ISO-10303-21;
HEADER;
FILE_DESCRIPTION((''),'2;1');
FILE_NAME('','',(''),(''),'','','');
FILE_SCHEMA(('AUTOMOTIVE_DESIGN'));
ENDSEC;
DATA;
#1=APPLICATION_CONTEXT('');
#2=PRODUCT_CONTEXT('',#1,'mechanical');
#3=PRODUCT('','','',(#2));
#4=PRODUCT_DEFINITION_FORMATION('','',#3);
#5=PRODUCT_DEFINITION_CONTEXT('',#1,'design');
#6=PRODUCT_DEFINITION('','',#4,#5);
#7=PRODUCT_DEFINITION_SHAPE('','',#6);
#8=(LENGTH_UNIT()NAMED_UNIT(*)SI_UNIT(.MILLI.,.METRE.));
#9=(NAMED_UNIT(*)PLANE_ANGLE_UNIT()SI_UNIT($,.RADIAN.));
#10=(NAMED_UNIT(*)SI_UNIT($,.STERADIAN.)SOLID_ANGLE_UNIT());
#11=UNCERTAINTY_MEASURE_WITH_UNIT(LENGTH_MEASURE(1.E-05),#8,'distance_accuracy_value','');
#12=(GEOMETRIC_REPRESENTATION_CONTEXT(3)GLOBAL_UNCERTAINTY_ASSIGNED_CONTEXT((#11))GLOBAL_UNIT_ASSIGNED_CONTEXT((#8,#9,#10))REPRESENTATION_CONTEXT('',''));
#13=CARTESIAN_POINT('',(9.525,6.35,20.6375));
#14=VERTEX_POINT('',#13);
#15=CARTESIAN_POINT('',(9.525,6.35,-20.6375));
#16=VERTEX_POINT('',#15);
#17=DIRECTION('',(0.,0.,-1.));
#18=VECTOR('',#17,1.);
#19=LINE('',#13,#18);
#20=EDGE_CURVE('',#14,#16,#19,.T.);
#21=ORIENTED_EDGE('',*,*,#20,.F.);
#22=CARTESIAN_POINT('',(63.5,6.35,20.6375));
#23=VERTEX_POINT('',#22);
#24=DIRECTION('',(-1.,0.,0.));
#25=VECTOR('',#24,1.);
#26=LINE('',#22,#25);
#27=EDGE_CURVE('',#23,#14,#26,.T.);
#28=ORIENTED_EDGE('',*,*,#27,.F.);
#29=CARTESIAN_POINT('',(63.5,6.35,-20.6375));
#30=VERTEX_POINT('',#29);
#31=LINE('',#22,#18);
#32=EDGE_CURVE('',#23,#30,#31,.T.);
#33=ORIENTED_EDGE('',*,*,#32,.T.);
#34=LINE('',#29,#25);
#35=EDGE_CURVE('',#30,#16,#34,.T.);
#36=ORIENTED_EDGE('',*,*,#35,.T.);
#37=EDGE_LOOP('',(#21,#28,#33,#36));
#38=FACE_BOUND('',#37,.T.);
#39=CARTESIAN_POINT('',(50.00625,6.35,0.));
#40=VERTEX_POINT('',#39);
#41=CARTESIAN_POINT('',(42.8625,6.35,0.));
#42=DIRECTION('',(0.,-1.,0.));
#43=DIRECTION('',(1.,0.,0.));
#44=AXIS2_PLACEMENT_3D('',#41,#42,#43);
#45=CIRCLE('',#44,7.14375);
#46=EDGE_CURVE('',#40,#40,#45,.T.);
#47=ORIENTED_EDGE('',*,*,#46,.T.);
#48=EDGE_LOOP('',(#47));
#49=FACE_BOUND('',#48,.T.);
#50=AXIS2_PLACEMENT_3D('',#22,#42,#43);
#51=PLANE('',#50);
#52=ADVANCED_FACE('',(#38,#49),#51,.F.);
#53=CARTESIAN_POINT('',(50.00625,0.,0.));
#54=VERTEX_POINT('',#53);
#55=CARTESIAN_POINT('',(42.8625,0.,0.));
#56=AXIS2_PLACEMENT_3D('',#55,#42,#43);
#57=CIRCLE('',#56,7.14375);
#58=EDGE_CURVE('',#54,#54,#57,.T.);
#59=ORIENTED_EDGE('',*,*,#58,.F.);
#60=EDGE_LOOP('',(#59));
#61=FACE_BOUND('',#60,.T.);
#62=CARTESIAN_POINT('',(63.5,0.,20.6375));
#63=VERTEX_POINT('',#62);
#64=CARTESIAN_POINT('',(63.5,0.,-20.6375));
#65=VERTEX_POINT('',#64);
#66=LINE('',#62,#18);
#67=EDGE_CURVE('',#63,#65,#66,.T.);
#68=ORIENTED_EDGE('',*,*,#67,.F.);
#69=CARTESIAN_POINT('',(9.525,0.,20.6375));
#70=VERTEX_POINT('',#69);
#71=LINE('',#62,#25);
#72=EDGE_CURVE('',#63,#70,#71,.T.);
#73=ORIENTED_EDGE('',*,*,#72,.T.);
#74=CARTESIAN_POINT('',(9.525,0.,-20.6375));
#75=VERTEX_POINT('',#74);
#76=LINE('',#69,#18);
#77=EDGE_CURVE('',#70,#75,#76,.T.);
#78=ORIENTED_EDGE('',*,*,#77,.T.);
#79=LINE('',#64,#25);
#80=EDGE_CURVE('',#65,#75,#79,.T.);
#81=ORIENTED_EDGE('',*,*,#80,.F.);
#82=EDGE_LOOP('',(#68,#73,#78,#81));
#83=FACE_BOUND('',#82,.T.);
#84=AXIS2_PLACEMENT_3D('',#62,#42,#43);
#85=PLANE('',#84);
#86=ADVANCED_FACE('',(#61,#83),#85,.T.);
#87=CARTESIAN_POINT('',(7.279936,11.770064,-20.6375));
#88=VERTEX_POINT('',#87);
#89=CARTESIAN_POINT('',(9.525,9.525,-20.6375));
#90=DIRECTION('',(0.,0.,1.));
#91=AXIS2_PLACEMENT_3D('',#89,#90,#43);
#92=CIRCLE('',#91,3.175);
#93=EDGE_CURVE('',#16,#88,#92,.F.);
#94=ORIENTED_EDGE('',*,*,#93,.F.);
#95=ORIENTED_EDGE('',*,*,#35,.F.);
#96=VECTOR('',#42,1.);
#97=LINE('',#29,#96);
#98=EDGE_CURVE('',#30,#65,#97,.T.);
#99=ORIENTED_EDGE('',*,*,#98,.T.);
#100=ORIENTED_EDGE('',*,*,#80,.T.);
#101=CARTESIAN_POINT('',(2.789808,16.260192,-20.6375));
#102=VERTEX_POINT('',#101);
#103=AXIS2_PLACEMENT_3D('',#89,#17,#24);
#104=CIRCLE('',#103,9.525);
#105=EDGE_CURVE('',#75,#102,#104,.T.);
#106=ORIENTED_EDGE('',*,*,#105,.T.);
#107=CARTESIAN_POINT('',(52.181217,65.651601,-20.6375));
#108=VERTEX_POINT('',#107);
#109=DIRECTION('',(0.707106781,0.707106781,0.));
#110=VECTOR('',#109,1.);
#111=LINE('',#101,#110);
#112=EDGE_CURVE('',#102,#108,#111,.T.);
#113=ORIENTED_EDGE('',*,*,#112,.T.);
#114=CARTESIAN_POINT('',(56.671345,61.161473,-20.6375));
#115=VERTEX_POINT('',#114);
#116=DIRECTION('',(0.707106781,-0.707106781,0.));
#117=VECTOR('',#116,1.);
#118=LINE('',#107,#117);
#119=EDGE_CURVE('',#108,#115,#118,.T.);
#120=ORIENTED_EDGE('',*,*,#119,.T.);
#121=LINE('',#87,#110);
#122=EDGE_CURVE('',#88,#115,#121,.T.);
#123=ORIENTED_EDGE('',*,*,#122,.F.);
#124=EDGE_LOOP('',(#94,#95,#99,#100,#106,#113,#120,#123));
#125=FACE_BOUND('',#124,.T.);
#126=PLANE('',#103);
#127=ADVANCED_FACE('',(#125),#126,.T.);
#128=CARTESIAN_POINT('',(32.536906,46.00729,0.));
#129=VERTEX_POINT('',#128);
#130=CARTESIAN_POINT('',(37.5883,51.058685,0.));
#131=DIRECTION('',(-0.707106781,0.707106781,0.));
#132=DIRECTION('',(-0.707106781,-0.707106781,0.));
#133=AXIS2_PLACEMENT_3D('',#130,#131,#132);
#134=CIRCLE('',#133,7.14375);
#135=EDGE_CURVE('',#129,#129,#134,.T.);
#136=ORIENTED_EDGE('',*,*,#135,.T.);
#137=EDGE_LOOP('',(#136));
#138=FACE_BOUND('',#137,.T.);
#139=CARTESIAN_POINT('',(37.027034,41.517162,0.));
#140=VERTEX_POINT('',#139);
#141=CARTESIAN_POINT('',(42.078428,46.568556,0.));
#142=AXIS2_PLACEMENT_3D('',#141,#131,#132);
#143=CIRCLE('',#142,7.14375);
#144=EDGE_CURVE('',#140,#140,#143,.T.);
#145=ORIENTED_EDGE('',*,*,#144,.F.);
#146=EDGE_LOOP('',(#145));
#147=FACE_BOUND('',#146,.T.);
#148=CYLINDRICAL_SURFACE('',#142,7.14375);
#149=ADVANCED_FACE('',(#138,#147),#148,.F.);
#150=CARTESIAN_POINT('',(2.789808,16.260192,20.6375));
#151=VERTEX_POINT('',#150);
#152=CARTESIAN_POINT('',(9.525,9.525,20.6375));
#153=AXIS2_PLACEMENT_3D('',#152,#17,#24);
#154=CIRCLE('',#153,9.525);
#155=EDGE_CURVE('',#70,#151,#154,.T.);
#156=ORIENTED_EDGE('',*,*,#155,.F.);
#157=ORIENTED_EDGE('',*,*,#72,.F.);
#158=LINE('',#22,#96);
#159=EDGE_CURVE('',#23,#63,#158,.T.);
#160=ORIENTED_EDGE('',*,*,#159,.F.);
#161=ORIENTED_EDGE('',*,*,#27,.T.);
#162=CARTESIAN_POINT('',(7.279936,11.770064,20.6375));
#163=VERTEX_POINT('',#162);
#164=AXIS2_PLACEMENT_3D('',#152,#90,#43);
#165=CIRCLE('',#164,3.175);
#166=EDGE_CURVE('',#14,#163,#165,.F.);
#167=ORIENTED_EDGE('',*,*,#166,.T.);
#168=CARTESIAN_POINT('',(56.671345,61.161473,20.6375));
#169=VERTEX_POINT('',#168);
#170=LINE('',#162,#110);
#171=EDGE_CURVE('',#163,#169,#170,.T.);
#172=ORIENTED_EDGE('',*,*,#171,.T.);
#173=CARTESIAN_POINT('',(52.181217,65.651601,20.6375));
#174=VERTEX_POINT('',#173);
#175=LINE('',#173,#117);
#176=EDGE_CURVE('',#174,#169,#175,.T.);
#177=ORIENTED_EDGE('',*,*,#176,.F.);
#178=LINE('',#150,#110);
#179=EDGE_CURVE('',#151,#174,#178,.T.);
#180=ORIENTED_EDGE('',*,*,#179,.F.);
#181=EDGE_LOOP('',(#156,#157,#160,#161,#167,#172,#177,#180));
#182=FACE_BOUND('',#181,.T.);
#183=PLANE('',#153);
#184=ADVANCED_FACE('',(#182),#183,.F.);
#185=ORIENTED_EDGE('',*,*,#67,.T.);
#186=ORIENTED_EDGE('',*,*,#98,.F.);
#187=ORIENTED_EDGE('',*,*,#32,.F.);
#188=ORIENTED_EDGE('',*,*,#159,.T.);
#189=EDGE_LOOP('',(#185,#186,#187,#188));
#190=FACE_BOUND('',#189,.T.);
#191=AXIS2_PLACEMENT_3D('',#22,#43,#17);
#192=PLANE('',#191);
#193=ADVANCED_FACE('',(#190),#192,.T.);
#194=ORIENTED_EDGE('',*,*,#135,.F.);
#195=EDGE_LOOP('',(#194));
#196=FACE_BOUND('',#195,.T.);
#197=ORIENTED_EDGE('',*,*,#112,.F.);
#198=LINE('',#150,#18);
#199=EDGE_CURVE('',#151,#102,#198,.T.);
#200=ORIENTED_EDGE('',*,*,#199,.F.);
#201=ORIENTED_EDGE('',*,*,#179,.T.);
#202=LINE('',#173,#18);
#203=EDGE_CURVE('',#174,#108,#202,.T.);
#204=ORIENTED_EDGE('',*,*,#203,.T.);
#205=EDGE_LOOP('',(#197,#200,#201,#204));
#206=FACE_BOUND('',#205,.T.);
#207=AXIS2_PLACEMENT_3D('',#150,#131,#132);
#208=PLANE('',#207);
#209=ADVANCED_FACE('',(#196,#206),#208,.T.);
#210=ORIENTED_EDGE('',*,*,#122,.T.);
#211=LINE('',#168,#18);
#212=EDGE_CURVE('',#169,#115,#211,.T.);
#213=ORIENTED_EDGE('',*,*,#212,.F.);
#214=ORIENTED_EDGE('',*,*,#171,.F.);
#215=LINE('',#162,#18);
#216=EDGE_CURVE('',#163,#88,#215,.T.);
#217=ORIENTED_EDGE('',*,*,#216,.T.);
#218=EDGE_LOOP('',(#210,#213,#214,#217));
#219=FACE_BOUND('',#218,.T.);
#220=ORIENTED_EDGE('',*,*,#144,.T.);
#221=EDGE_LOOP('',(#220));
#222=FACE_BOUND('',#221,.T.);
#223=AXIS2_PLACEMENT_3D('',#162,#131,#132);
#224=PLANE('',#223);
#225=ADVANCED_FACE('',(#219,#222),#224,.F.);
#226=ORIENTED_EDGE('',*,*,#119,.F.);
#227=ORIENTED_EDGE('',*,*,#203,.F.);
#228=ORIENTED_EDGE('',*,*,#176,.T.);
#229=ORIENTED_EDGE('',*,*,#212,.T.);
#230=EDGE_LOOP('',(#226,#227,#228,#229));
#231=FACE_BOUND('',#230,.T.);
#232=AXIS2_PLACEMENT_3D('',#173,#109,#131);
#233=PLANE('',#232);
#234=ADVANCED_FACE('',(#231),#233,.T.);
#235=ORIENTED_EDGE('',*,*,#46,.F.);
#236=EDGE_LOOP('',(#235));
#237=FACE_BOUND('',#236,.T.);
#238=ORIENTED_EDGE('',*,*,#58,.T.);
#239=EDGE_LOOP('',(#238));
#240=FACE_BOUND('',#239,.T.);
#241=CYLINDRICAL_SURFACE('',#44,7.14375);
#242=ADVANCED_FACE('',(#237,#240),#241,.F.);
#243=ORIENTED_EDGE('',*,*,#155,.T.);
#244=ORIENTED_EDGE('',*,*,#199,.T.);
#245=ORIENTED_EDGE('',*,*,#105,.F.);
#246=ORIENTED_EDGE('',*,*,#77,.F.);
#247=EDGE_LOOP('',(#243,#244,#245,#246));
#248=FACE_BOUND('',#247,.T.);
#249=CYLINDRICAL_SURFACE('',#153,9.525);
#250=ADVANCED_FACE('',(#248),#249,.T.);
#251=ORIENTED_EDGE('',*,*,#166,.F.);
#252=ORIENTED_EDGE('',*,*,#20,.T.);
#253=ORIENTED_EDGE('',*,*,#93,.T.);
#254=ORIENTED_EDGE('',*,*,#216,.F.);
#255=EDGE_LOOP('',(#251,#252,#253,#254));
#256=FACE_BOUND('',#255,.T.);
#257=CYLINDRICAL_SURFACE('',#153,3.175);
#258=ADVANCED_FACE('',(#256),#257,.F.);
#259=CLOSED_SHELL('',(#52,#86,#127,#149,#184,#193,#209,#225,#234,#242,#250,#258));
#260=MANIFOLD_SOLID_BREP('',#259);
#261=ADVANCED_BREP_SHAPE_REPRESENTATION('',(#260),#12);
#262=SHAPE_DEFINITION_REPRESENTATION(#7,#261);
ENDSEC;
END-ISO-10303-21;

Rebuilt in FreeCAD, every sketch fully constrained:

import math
import FreeCAD as App
import Part
import Sketcher
Q = App.Units.Quantity

doc = App.newDocument("Part")
params = doc.addObject("Spreadsheet::Sheet", "Params")
for row, (alias, value) in enumerate([
    ("sketch1_radius", "0.125 in"),
    ("sketch1_radius2", "0.375 in"),
    ("sketch1_length", "2.75 in"),
    ("sketch1_width", "2.125 in"),
    ("pad1_length", "1.625 in"),
    ("sketch2_diameter", "0.5625 in"),
    ("pocket1_length", "0.25 in"),
    ("sketch3_diameter", "0.5625 in"),
    ("pocket2_length", "0.25 in"),
], start=1):
    params.set(f"A{row}", alias)
    params.set(f"B{row}", "=" + value)
    params.setAlias(f"B{row}", alias)

body = doc.addObject("PartDesign::Body", "Body")

# Sketch on XY plane
sketch1 = body.newObject("Sketcher::SketchObject", "Sketch")
sketch1.AttachmentSupport = (doc.getObject("XY_Plane"), [""])
sketch1.MapMode = "FlatFace"
sketch1.addGeometry([
    Part.LineSegment(App.Vector(9.525, 0, 0), App.Vector(63.5, 0, 0)),  # 0
    Part.LineSegment(App.Vector(63.5, 0, 0), App.Vector(63.5, 6.35, 0)),  # 1
    Part.LineSegment(App.Vector(63.5, 6.35, 0), App.Vector(9.525, 6.35, 0)),  # 2
    Part.ArcOfCircle(Part.Circle(App.Vector(9.525, 9.525, 0), App.Vector(0, 0, 1), 3.175), math.radians(135), math.radians(270)),  # 3
    Part.LineSegment(App.Vector(7.279936, 11.770064, 0), App.Vector(56.671345, 61.161473, 0)),  # 4
    Part.LineSegment(App.Vector(56.671345, 61.161473, 0), App.Vector(52.181217, 65.651601, 0)),  # 5
    Part.LineSegment(App.Vector(52.181217, 65.651601, 0), App.Vector(2.789808, 16.260192, 0)),  # 6
    Part.ArcOfCircle(Part.Circle(App.Vector(9.525, 9.525, 0), App.Vector(0, 0, 1), 9.525), math.radians(135), math.radians(270)),  # 7
], False)
sketch1.addConstraint([
    Sketcher.Constraint("Coincident", 0, 2, 1, 1),
    Sketcher.Constraint("Coincident", 1, 2, 2, 1),
    Sketcher.Constraint("Tangent", 2, 2, 3, 2),
    Sketcher.Constraint("Tangent", 3, 1, 4, 1),
    Sketcher.Constraint("Coincident", 4, 2, 5, 1),
    Sketcher.Constraint("Coincident", 5, 2, 6, 1),
    Sketcher.Constraint("Tangent", 6, 2, 7, 1),
    Sketcher.Constraint("Tangent", 7, 2, 0, 1),
    Sketcher.Constraint("Horizontal", 0),
    Sketcher.Constraint("Vertical", 1),
    Sketcher.Constraint("Horizontal", 2),
    Sketcher.Constraint("Coincident", 7, 3, 3, 3),
    Sketcher.Constraint("PointOnObject", 0, 2, -1),
    Sketcher.Constraint("Perpendicular", 4, 5),
    Sketcher.Constraint("Perpendicular", 5, 6),
    Sketcher.Constraint("Angle", 4, Q("45 deg")),
    Sketcher.Constraint("Radius", 3, Q("0.125 in")),
    Sketcher.Constraint("Radius", 7, Q("0.375 in")),
    Sketcher.Constraint("DistanceX", -1, 1, 0, 2, Q("2.5 in")),
    Sketcher.Constraint("Distance", 4, Q("2.75 in")),
    Sketcher.Constraint("DistanceX", 0, 1, 0, 2, Q("2.125 in")),
])
sketch1.setExpression("Constraints[16]", "Params.sketch1_radius")
sketch1.setExpression("Constraints[17]", "Params.sketch1_radius2")
sketch1.setExpression("Constraints[19]", "Params.sketch1_length")
sketch1.setExpression("Constraints[20]", "Params.sketch1_width")
pad1 = body.newObject("PartDesign::Pad", "Pad")
pad1.Profile = sketch1
pad1.setExpression("Length", "Params.pad1_length")
pad1.Midplane = True

# Sketch on XZ plane
sketch2 = body.newObject("Sketcher::SketchObject", "Sketch001")
sketch2.AttachmentSupport = (doc.getObject("XZ_Plane"), [""])
sketch2.MapMode = "FlatFace"
sketch2.addGeometry(Part.Circle(App.Vector(42.8625, 0, 0), App.Vector(0, 0, 1), 7.14375), False)
sketch2.addConstraint([
    Sketcher.Constraint("PointOnObject", 0, 3, -1),
    Sketcher.Constraint("Diameter", 0, Q("0.5625 in")),
    Sketcher.Constraint("DistanceX", -1, 1, 0, 3, Q("1.6875 in")),
])
sketch2.setExpression("Constraints[1]", "Params.sketch2_diameter")
pocket1 = body.newObject("PartDesign::Pocket", "Pocket")
pocket1.Profile = sketch2
pocket1.setExpression("Length", "Params.pocket1_length")

# Sketch on an angled plane
sketch3 = body.newObject("Sketcher::SketchObject", "Sketch002")
sketch3.Placement = App.Placement(App.Vector(-6.735192, 6.735192, 0), App.Rotation(App.Vector(0, 0, 1), App.Vector(0.707106781, 0.707106781, 0), App.Vector(-0.707106781, 0.707106781, 0), "ZXY"))
sketch3.addGeometry(Part.Circle(App.Vector(0, 62.682884, 0), App.Vector(0, 0, 1), 7.14375), False)
sketch3.addConstraint([
    Sketcher.Constraint("PointOnObject", 0, 3, -2),
    Sketcher.Constraint("Diameter", 0, Q("0.5625 in")),
    Sketcher.Constraint("DistanceY", -1, 1, 0, 3, 62.682884),
])
sketch3.setExpression("Constraints[1]", "Params.sketch3_diameter")
pocket2 = body.newObject("PartDesign::Pocket", "Pocket001")
pocket2.Profile = sketch3
pocket2.setExpression("Length", "Params.pocket2_length")

doc.recompute()
